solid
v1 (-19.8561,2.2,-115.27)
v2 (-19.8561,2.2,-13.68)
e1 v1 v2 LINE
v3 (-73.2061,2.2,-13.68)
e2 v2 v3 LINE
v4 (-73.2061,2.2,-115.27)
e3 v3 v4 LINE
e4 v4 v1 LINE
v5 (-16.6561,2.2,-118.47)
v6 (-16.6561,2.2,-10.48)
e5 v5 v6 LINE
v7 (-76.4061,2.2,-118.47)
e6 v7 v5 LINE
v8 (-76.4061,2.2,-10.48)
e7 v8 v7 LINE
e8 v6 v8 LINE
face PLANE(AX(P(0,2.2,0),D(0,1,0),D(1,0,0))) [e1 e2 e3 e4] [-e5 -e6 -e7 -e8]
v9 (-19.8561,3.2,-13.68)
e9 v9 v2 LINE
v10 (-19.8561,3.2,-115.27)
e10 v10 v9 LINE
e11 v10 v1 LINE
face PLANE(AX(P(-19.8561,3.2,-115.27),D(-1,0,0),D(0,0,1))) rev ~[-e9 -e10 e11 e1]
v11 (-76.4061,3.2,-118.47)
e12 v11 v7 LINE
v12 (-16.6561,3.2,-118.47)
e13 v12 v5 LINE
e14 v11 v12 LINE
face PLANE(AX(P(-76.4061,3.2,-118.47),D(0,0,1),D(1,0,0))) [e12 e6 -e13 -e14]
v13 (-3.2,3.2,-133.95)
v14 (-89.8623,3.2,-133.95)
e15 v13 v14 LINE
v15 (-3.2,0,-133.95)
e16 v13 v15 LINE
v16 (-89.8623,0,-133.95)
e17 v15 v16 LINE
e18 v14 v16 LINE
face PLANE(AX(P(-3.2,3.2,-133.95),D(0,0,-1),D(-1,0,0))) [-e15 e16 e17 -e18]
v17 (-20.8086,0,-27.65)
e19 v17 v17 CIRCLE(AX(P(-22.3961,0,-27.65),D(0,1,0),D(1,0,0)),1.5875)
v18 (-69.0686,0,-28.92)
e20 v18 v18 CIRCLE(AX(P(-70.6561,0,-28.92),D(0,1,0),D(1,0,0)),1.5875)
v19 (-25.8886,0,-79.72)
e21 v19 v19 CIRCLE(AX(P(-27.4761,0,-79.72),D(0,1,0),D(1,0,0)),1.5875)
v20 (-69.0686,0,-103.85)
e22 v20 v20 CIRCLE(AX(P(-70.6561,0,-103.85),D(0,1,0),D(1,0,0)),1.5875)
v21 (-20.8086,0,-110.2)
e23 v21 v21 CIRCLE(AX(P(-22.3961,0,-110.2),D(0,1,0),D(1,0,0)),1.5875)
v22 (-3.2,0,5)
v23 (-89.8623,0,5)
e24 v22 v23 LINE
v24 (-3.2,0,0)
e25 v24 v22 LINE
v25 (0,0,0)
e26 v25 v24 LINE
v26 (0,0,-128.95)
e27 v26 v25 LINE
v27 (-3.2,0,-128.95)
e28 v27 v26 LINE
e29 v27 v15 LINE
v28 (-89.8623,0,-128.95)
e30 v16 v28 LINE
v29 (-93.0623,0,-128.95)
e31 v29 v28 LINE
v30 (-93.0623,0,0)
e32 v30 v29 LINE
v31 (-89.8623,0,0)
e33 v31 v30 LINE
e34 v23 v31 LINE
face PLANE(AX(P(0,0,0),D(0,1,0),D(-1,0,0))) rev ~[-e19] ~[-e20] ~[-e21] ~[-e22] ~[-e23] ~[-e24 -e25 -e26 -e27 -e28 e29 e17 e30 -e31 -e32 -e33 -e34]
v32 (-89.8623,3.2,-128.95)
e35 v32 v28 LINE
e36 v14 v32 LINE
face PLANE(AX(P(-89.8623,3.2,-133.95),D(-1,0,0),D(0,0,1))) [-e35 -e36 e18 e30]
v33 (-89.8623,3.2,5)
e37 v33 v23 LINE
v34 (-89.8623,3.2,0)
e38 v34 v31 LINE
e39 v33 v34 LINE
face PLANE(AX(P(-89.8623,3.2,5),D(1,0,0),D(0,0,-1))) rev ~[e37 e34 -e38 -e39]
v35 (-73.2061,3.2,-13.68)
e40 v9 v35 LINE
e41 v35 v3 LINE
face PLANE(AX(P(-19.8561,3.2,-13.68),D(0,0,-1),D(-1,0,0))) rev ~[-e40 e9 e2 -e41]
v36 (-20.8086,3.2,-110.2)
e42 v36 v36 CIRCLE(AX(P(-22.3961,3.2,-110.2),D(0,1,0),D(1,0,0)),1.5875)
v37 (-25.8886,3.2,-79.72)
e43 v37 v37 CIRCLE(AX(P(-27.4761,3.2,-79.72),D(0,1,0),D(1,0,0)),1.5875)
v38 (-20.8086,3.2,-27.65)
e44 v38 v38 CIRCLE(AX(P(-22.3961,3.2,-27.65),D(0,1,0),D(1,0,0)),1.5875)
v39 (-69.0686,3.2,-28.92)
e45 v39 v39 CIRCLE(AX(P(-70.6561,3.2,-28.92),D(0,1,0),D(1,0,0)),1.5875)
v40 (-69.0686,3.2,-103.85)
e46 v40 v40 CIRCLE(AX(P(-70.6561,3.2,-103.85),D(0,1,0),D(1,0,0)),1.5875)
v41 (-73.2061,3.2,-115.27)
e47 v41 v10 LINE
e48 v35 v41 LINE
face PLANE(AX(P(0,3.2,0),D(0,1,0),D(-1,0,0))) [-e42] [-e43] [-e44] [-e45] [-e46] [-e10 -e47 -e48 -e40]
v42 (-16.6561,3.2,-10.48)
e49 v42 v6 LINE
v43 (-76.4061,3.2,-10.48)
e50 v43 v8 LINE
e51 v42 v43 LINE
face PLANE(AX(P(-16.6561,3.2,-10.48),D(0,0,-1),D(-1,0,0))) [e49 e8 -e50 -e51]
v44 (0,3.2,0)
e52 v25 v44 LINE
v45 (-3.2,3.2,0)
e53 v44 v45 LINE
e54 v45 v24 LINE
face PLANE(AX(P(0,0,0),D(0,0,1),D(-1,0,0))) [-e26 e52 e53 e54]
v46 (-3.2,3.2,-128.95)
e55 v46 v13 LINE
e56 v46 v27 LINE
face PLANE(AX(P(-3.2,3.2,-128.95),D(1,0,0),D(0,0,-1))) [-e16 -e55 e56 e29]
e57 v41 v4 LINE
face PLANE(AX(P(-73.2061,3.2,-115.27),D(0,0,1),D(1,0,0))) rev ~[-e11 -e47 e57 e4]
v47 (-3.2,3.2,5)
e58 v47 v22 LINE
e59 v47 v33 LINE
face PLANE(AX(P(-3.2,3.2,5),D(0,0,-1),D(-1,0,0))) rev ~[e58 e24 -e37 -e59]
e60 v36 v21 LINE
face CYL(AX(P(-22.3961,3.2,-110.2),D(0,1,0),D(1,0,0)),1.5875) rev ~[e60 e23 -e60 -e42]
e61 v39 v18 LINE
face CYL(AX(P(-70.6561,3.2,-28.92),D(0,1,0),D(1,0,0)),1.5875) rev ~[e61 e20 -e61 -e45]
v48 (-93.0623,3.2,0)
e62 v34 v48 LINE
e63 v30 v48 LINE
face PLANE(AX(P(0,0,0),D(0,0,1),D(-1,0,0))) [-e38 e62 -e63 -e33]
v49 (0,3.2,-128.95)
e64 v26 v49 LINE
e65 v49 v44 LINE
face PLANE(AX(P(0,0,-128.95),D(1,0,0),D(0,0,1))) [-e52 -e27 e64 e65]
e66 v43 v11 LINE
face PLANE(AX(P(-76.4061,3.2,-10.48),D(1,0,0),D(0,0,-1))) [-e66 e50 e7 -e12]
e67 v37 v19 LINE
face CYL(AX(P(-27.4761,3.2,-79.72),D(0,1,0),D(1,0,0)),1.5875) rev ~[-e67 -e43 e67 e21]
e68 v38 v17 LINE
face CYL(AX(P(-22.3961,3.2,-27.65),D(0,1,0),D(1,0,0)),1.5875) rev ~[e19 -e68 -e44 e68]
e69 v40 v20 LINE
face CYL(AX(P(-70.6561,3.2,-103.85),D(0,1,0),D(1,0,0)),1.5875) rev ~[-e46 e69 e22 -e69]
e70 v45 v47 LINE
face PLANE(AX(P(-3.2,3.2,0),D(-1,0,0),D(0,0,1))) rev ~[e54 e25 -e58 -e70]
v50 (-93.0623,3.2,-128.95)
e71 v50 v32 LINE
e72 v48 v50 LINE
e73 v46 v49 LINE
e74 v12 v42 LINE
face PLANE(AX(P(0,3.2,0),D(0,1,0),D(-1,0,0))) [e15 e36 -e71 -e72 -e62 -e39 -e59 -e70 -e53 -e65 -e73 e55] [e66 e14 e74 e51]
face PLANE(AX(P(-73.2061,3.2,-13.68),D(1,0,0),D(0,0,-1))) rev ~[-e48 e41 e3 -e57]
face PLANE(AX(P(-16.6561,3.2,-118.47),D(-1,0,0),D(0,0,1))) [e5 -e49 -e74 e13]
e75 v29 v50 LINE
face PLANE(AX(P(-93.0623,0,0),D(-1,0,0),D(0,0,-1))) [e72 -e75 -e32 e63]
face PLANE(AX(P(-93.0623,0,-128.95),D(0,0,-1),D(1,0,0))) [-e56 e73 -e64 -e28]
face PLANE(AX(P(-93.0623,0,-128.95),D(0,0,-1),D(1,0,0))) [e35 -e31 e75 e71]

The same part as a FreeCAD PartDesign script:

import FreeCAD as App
import Part
import Sketcher

V = App.Vector
Q = App.Units.Quantity


def add_polygon(sketch, points):
    """Adds a closed chain of lines whose ends are joined by coincident constraints."""
    first, n = sketch.GeometryCount, len(points)
    for a, b in zip(points, points[1:] + points[:1]):
        sketch.addGeometry(Part.LineSegment(App.Vector(*a, 0), App.Vector(*b, 0)), False)
    for i in range(n):
        sketch.addConstraint(Sketcher.Constraint("Coincident", first + i, 2, first + (i + 1) % n, 1))

doc = App.newDocument("Part")
params = doc.addObject("Spreadsheet::Sheet", "Params")
for row, (alias, value) in enumerate([
    ("sketch1_height", "128.95 mm"),
    ("pad1_length", "3.2 mm"),
    ("pocket1_length", "3.2 mm"),
    ("sketch3_width", "59.75 mm"),
    ("sketch3_width2", "53.35 mm"),
    ("sketch3_height", "107.99 mm"),
    ("sketch3_height2", "101.59 mm"),
    ("pocket2_length", "1 mm"),
    ("sketch4_height", "5 mm"),
    ("pad2_length", "3.2 mm"),
], start=1):
    params.set(f"A{row}", alias)
    params.set(f"B{row}", "=" + value)
    params.setAlias(f"B{row}", alias)

body = doc.addObject("PartDesign::Body", "Body")

# Sketch on XZ plane
sketch1 = doc.addObject("Sketcher::SketchObject", "Sketch")
body.addObject(sketch1)
sketch1.AttachmentSupport = (doc.XZ_Plane, [""])
sketch1.MapMode = "FlatFace"
add_polygon(sketch1, [(-93, 0), (0, 0), (0, -129), (-93, -129)])  # lines 0-3
sketch1.addConstraint(Sketcher.Constraint("Horizontal", 0))
sketch1.addConstraint(Sketcher.Constraint("Vertical", 1))
sketch1.addConstraint(Sketcher.Constraint("Horizontal", 2))
sketch1.addConstraint(Sketcher.Constraint("Vertical", 3))
sketch1.addConstraint(Sketcher.Constraint("Coincident", 0, 2, -1, 1))
sketch1.addConstraint(Sketcher.Constraint("DistanceY", 1, 2, 1, 1, Q("128.95 mm")))
sketch1.addConstraint(Sketcher.Constraint("DistanceX", 0, 1, 0, 2, Q("93.0623 mm")))
sketch1.setExpression("Constraints[9]", "Params.sketch1_height")
pad1 = doc.addObject("PartDesign::Pad", "Pad")
body.addObject(pad1)
pad1.Profile = sketch1
pad1.setExpression("Length", "Params.pad1_length")
pad1.Reversed = True

# Sketch on XZ plane
sketch2 = doc.addObject("Sketcher::SketchObject", "Sketch001")
body.addObject(sketch2)
sketch2.AttachmentSupport = (doc.XZ_Plane, [""])
sketch2.MapMode = "FlatFace"
sketch2.AttachmentOffset = App.Placement(V(0, 0, -3.2), App.Rotation())
sketch2.addGeometry(Part.Circle(V(-70.7, -28.9, 0), V(0, 0, 1), 1.6), False)
sketch2.addGeometry(Part.Circle(V(-22.4, -27.6, 0), V(0, 0, 1), 1.6), False)
sketch2.addGeometry(Part.Circle(V(-22.4, -110.2, 0), V(0, 0, 1), 1.6), False)
sketch2.addGeometry(Part.Circle(V(-70.7, -103.8, 0), V(0, 0, 1), 1.6), False)
sketch2.addGeometry(Part.Circle(V(-27.5, -79.7, 0), V(0, 0, 1), 1.6), False)
sketch2.addConstraint(Sketcher.Constraint("Equal", 0, 1))
sketch2.addConstraint(Sketcher.Constraint("Equal", 1, 2))
sketch2.addConstraint(Sketcher.Constraint("Equal", 2, 3))
sketch2.addConstraint(Sketcher.Constraint("Equal", 3, 4))
sketch2.addConstraint(Sketcher.Constraint("Vertical", 1, 3, 2, 3))
sketch2.addConstraint(Sketcher.Constraint("Vertical", 0, 3, 3, 3))
sketch2.addConstraint(Sketcher.Constraint("Diameter", 0, Q("3.175 mm")))
sketch2.addConstraint(Sketcher.Constraint("DistanceY", 4, 3, 0, 3, Q("50.8 mm")))
sketch2.addConstraint(Sketcher.Constraint("DistanceY", 2, 3, -1, 1, Q("110.2 mm")))
sketch2.addConstraint(Sketcher.Constraint("DistanceY", 3, 3, 1, 3, Q("76.2 mm")))
sketch2.addConstraint(Sketcher.Constraint("DistanceY", 0, 3, -1, 1, Q("28.92 mm")))
sketch2.addConstraint(Sketcher.Constraint("DistanceY", 1, 3, -1, 1, Q("27.65 mm")))
sketch2.addConstraint(Sketcher.Constraint("DistanceX", 0, 3, 1, 3, Q("48.26 mm")))
sketch2.addConstraint(Sketcher.Constraint("DistanceX", 4, 3, 2, 3, Q("5.08 mm")))
sketch2.addConstraint(Sketcher.Constraint("DistanceX", 0, 3, -1, 1, Q("70.656 mm")))
pocket1 = doc.addObject("PartDesign::Pocket", "Pocket")
body.addObject(pocket1)
pocket1.Profile = sketch2
pocket1.setExpression("Length", "Params.pocket1_length")
pocket1.Reversed = True

# Sketch on XZ plane
sketch3 = doc.addObject("Sketcher::SketchObject", "Sketch002")
body.addObject(sketch3)
sketch3.AttachmentSupport = (doc.XZ_Plane, [""])
sketch3.MapMode = "FlatFace"
sketch3.AttachmentOffset = App.Placement(V(0, 0, -3.2), App.Rotation())
add_polygon(sketch3, [(-76, -118), (-76, -10), (-17, -10), (-17, -118)])  # lines 0-3
add_polygon(sketch3, [(-20, -14), (-73, -14), (-73, -115), (-20, -115)])  # lines 4-7
sketch3.addConstraint(Sketcher.Constraint("Vertical", 0))
sketch3.addConstraint(Sketcher.Constraint("Horizontal", 1))
sketch3.addConstraint(Sketcher.Constraint("Vertical", 2))
sketch3.addConstraint(Sketcher.Constraint("Horizontal", 3))
sketch3.addConstraint(Sketcher.Constraint("Horizontal", 4))
sketch3.addConstraint(Sketcher.Constraint("Vertical", 5))
sketch3.addConstraint(Sketcher.Constraint("Horizontal", 6))
sketch3.addConstraint(Sketcher.Constraint("Vertical", 7))
sketch3.addConstraint(Sketcher.Constraint("DistanceX", 1, 1, 1, 2, Q("59.75 mm")))
sketch3.addConstraint(Sketcher.Constraint("DistanceX", 4, 2, 4, 1, Q("53.35 mm")))
sketch3.addConstraint(Sketcher.Constraint("DistanceY", 0, 1, 0, 2, Q("107.99 mm")))
sketch3.addConstraint(Sketcher.Constraint("DistanceY", 5, 2, 5, 1, Q("101.59 mm")))
sketch3.addConstraint(Sketcher.Constraint("DistanceX", 0, 2, 4, 2, Q("3.2 mm")))
sketch3.addConstraint(Sketcher.Constraint("DistanceY", 4, 2, 0, 2, Q("3.2 mm")))
sketch3.addConstraint(Sketcher.Constraint("DistanceY", 0, 2, -1, 1, Q("10.48 mm")))
sketch3.addConstraint(Sketcher.Constraint("DistanceX", 0, 2, -1, 1, Q("76.406 mm")))
sketch3.setExpression("Constraints[16]", "Params.sketch3_width")
sketch3.setExpression("Constraints[17]", "Params.sketch3_width2")
sketch3.setExpression("Constraints[18]", "Params.sketch3_height")
sketch3.setExpression("Constraints[19]", "Params.sketch3_height2")
pocket2 = doc.addObject("PartDesign::Pocket", "Pocket001")
body.addObject(pocket2)
pocket2.Profile = sketch3
pocket2.setExpression("Length", "Params.pocket2_length")
pocket2.Reversed = True

# Sketch on XZ plane
sketch4 = doc.addObject("Sketcher::SketchObject", "Sketch003")
body.addObject(sketch4)
sketch4.AttachmentSupport = (doc.XZ_Plane, [""])
sketch4.MapMode = "FlatFace"
sketch4.AttachmentOffset = App.Placement(V(0, 0, -3.2), App.Rotation())
add_polygon(sketch4, [(-3, 0), (-90, 0), (-90, 5), (-3, 5)])  # lines 0-3
add_polygon(sketch4, [(-90, -134), (-90, -129), (-3, -129), (-3, -134)])  # lines 4-7
sketch4.addConstraint(Sketcher.Constraint("Horizontal", 0))
sketch4.addConstraint(Sketcher.Constraint("Vertical", 1))
sketch4.addConstraint(Sketcher.Constraint("Horizontal", 2))
sketch4.addConstraint(Sketcher.Constraint("Vertical", 3))
sketch4.addConstraint(Sketcher.Constraint("Vertical", 4))
sketch4.addConstraint(Sketcher.Constraint("Horizontal", 5))
sketch4.addConstraint(Sketcher.Constraint("Vertical", 6))
sketch4.addConstraint(Sketcher.Constraint("Horizontal", 7))
sketch4.addConstraint(Sketcher.Constraint("PointOnObject", 0, 2, -1))
sketch4.addConstraint(Sketcher.Constraint("Vertical", 1, 2, 4, 2))
sketch4.addConstraint(Sketcher.Constraint("Vertical", 3, 2, 5, 2))
sketch4.addConstraint(Sketcher.Constraint("Equal", 3, 4))
sketch4.addConstraint(Sketcher.Constraint("DistanceY", 1, 1, 1, 2, Q("5 mm")))
sketch4.addConstraint(Sketcher.Constraint("DistanceX", 2, 2, -1, 1, Q("3.2 mm")))
sketch4.addConstraint(Sketcher.Constraint("DistanceY", 4, 2, -1, 1, Q("128.95 mm")))
sketch4.addConstraint(Sketcher.Constraint("DistanceX", 0, 2, 0, 1, Q("86.6623 mm")))
sketch4.setExpression("Constraints[20]", "Params.sketch4_height")
pad2 = doc.addObject("PartDesign::Pad", "Pad001")
body.addObject(pad2)
pad2.Profile = sketch4
pad2.setExpression("Length", "Params.pad2_length")

doc.recompute()
